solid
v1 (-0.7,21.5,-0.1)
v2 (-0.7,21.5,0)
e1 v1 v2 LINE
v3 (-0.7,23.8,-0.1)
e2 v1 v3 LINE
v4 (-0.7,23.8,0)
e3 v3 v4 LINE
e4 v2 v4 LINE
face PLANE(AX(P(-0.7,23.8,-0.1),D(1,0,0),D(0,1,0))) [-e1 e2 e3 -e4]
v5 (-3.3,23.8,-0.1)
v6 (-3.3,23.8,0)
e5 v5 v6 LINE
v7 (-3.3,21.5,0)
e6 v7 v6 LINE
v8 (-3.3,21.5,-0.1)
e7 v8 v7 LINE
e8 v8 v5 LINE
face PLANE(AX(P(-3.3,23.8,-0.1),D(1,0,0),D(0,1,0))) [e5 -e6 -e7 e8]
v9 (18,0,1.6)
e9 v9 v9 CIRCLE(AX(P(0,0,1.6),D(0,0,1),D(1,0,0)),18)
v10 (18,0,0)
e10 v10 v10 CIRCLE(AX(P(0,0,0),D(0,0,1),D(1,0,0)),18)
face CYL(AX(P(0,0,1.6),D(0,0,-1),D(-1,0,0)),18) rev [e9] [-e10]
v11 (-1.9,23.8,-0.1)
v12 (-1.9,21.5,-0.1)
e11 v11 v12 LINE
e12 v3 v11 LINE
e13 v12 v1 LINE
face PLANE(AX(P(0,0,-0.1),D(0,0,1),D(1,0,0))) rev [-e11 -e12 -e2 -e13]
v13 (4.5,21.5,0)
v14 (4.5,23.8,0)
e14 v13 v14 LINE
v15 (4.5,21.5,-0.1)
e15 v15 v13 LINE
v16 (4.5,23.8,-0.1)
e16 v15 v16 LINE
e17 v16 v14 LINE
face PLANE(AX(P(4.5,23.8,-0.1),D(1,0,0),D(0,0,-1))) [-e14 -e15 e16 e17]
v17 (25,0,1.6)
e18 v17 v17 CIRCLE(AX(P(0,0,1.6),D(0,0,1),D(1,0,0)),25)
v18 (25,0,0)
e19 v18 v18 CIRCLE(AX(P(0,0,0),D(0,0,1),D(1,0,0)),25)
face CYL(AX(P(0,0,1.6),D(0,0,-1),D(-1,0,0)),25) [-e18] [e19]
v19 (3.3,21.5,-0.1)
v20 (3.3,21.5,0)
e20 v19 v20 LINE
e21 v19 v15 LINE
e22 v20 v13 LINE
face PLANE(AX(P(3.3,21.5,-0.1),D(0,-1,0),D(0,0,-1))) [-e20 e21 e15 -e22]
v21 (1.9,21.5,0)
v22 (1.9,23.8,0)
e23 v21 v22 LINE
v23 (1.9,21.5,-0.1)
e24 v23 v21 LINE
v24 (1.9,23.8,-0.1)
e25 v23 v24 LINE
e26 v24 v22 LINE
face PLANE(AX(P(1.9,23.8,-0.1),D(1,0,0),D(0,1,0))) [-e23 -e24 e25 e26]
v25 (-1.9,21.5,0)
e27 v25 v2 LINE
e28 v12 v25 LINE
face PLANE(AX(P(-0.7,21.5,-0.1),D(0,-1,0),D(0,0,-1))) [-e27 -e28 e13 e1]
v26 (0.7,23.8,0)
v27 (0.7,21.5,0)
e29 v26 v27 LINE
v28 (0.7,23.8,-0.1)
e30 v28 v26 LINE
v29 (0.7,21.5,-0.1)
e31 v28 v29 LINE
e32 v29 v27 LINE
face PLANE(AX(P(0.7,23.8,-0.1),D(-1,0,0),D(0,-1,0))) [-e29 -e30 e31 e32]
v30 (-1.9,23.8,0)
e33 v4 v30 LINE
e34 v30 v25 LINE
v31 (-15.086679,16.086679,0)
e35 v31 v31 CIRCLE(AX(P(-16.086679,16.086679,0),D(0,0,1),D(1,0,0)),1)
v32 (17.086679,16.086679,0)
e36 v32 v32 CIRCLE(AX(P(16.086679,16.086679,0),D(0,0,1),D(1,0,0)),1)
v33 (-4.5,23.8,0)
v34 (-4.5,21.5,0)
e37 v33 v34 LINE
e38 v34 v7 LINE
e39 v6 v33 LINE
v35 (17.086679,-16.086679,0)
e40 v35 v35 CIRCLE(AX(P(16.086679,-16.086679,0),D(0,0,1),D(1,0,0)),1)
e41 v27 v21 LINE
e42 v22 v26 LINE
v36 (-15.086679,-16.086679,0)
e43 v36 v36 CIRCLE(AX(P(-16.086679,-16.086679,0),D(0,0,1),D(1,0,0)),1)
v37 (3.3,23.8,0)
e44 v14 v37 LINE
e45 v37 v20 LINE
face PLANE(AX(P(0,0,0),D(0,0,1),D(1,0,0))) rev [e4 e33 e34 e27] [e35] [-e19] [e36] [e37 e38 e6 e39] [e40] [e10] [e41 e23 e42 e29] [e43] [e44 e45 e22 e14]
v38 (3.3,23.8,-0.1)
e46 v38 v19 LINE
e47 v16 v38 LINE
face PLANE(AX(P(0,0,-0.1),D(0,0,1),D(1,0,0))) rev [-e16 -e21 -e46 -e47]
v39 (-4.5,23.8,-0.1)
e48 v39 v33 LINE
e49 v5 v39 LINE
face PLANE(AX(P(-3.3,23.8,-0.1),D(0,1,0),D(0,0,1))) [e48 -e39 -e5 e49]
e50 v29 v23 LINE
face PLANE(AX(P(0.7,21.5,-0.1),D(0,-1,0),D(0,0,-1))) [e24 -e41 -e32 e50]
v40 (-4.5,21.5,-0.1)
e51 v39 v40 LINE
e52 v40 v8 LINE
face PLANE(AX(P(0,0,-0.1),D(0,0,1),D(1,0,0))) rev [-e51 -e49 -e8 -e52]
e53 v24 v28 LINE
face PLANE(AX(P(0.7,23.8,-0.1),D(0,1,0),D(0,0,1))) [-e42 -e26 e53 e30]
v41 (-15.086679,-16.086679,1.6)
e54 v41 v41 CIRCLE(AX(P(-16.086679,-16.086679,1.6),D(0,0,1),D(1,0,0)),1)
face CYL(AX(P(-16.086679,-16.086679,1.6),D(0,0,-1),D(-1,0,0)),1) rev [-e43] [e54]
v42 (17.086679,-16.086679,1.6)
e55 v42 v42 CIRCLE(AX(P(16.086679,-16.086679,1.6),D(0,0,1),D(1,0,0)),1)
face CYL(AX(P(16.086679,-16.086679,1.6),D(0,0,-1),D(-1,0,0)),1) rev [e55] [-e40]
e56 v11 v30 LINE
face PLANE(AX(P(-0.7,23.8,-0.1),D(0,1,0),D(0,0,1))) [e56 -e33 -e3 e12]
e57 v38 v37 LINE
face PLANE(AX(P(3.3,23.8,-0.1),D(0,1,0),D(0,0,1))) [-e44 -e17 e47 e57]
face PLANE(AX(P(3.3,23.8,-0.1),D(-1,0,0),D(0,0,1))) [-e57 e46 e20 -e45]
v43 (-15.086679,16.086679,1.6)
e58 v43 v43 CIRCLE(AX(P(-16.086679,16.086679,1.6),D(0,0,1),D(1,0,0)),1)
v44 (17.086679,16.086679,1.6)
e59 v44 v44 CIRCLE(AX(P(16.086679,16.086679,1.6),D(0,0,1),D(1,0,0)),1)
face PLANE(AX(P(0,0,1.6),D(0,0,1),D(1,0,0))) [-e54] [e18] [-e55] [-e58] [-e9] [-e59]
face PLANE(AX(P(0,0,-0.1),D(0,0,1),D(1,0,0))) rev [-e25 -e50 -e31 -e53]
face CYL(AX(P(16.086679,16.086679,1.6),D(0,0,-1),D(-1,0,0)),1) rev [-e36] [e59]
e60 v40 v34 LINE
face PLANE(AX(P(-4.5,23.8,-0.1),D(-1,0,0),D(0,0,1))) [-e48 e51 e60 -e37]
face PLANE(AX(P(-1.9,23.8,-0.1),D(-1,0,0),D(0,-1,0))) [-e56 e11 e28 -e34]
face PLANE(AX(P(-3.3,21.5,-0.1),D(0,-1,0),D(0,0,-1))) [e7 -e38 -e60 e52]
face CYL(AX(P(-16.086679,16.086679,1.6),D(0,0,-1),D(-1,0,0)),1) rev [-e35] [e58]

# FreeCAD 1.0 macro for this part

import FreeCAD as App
import Part
import Sketcher
from FreeCAD import Vector

doc = App.newDocument("Part")
body = doc.addObject("PartDesign::Body", "Body")

# Sketch on XY plane
sketch1 = body.newObject("Sketcher::SketchObject", "Sketch")
sketch1.AttachmentSupport = (doc.getObject("XY_Plane"), [""])
sketch1.MapMode = "FlatFace"
sketch1.addGeometry(Part.Circle(Vector(0, 0, 0), Vector(0, 0, 1), 25), False)
sketch1.addGeometry(Part.Circle(Vector(-16.1, -16.1, 0), Vector(0, 0, 1), 1), False)
sketch1.addGeometry(Part.Circle(Vector(16.1, -16.1, 0), Vector(0, 0, 1), 1), False)
sketch1.addGeometry(Part.Circle(Vector(-16.1, 16.1, 0), Vector(0, 0, 1), 1), False)
sketch1.addGeometry(Part.Circle(Vector(0, 0, 0), Vector(0, 0, 1), 18), False)
sketch1.addGeometry(Part.Circle(Vector(16.1, 16.1, 0), Vector(0, 0, 1), 1), False)
sketch1.addConstraint(Sketcher.Constraint("Coincident", 0, 3, -1, 1))
sketch1.addConstraint(Sketcher.Constraint("Coincident", 4, 3, -1, 1))
sketch1.addConstraint(Sketcher.Constraint("Equal", 1, 2))
sketch1.addConstraint(Sketcher.Constraint("Equal", 2, 3))
sketch1.addConstraint(Sketcher.Constraint("Equal", 3, 5))
sketch1.addConstraint(Sketcher.Constraint("Symmetric", 2, 3, 3, 3, -1, 1))
sketch1.addConstraint(Sketcher.Constraint("Symmetric", 1, 3, 5, 3, -1, 1))
sketch1.addConstraint(Sketcher.Constraint("Symmetric", 1, 3, 2, 3, -2))
sketch1.addConstraint(Sketcher.Constraint("Diameter", 0, 50.0))
sketch1.addConstraint(Sketcher.Constraint("Diameter", 1, 2.0))
sketch1.addConstraint(Sketcher.Constraint("Diameter", 4, 36.0))
sketch1.addConstraint(Sketcher.Constraint("DistanceX", 1, 3, -1, 1, 16.086679))
sketch1.addConstraint(Sketcher.Constraint("DistanceY", 1, 3, -1, 1, 16.086679))
pad1 = body.newObject("PartDesign::Pad", "Pad")
pad1.Profile = sketch1
pad1.Length = 1.6

# Sketch on XY plane
sketch2 = body.newObject("Sketcher::SketchObject", "Sketch001")
sketch2.AttachmentSupport = (doc.getObject("XY_Plane"), [""])
sketch2.MapMode = "FlatFace"
sketch2.addGeometry(Part.LineSegment(Vector(0.7, 23.8, 0), Vector(0.7, 21.5, 0)), False)
sketch2.addGeometry(Part.LineSegment(Vector(0.7, 21.5, 0), Vector(1.9, 21.5, 0)), False)
sketch2.addGeometry(Part.LineSegment(Vector(1.9, 21.5, 0), Vector(1.9, 23.8, 0)), False)
sketch2.addGeometry(Part.LineSegment(Vector(1.9, 23.8, 0), Vector(0.7, 23.8, 0)), False)
sketch2.addGeometry(Part.LineSegment(Vector(3.3, 23.8, 0), Vector(3.3, 21.5, 0)), False)
sketch2.addGeometry(Part.LineSegment(Vector(3.3, 21.5, 0), Vector(4.5, 21.5, 0)), False)
sketch2.addGeometry(Part.LineSegment(Vector(4.5, 21.5, 0), Vector(4.5, 23.8, 0)), False)
sketch2.addGeometry(Part.LineSegment(Vector(4.5, 23.8, 0), Vector(3.3, 23.8, 0)), False)
sketch2.addGeometry(Part.LineSegment(Vector(-4.5, 23.8, 0), Vector(-4.5, 21.5, 0)), False)
sketch2.addGeometry(Part.LineSegment(Vector(-4.5, 21.5, 0), Vector(-3.3, 21.5, 0)), False)
sketch2.addGeometry(Part.LineSegment(Vector(-3.3, 21.5, 0), Vector(-3.3, 23.8, 0)), False)
sketch2.addGeometry(Part.LineSegment(Vector(-3.3, 23.8, 0), Vector(-4.5, 23.8, 0)), False)
sketch2.addGeometry(Part.LineSegment(Vector(-1.9, 23.8, 0), Vector(-1.9, 21.5, 0)), False)
sketch2.addGeometry(Part.LineSegment(Vector(-1.9, 21.5, 0), Vector(-0.7, 21.5, 0)), False)
sketch2.addGeometry(Part.LineSegment(Vector(-0.7, 21.5, 0), Vector(-0.7, 23.8, 0)), False)
sketch2.addGeometry(Part.LineSegment(Vector(-0.7, 23.8, 0), Vector(-1.9, 23.8, 0)), False)
sketch2.addConstraint(Sketcher.Constraint("Coincident", 0, 2, 1, 1))
sketch2.addConstraint(Sketcher.Constraint("Coincident", 1, 2, 2, 1))
sketch2.addConstraint(Sketcher.Constraint("Coincident", 2, 2, 3, 1))
sketch2.addConstraint(Sketcher.Constraint("Coincident", 3, 2, 0, 1))
sketch2.addConstraint(Sketcher.Constraint("Coincident", 4, 2, 5, 1))
sketch2.addConstraint(Sketcher.Constraint("Coincident", 5, 2, 6, 1))
sketch2.addConstraint(Sketcher.Constraint("Coincident", 6, 2, 7, 1))
sketch2.addConstraint(Sketcher.Constraint("Coincident", 7, 2, 4, 1))
sketch2.addConstraint(Sketcher.Constraint("Coincident", 8, 2, 9, 1))
sketch2.addConstraint(Sketcher.Constraint("Coincident", 9, 2, 10, 1))
sketch2.addConstraint(Sketcher.Constraint("Coincident", 10, 2, 11, 1))
sketch2.addConstraint(Sketcher.Constraint("Coincident", 11, 2, 8, 1))
sketch2.addConstraint(Sketcher.Constraint("Coincident", 12, 2, 13, 1))
sketch2.addConstraint(Sketcher.Constraint("Coincident", 13, 2, 14, 1))
sketch2.addConstraint(Sketcher.Constraint("Coincident", 14, 2, 15, 1))
sketch2.addConstraint(Sketcher.Constraint("Coincident", 15, 2, 12, 1))
sketch2.addConstraint(Sketcher.Constraint("Vertical", 0))
sketch2.addConstraint(Sketcher.Constraint("Horizontal", 1))
sketch2.addConstraint(Sketcher.Constraint("Vertical", 2))
sketch2.addConstraint(Sketcher.Constraint("Horizontal", 3))
sketch2.addConstraint(Sketcher.Constraint("Vertical", 4))
sketch2.addConstraint(Sketcher.Constraint("Horizontal", 5))
sketch2.addConstraint(Sketcher.Constraint("Vertical", 6))
sketch2.addConstraint(Sketcher.Constraint("Horizontal", 7))
sketch2.addConstraint(Sketcher.Constraint("Vertical", 8))
sketch2.addConstraint(Sketcher.Constraint("Horizontal", 9))
sketch2.addConstraint(Sketcher.Constraint("Vertical", 10))
sketch2.addConstraint(Sketcher.Constraint("Horizontal", 11))
sketch2.addConstraint(Sketcher.Constraint("Vertical", 12))
sketch2.addConstraint(Sketcher.Constraint("Horizontal", 13))
sketch2.addConstraint(Sketcher.Constraint("Vertical", 14))
sketch2.addConstraint(Sketcher.Constraint("Horizontal", 15))
sketch2.addConstraint(Sketcher.Constraint("Symmetric", 5, 2, 8, 2, -2))
sketch2.addConstraint(Sketcher.Constraint("Symmetric", 7, 2, 10, 2, -2))
sketch2.addConstraint(Sketcher.Constraint("Symmetric", 1, 2, 12, 2, -2))
sketch2.addConstraint(Sketcher.Constraint("Symmetric", 3, 2, 14, 2, -2))
sketch2.addConstraint(Sketcher.Constraint("Horizontal", 1, 2, 4, 2))
sketch2.addConstraint(Sketcher.Constraint("Horizontal", 3, 2, 6, 2))
sketch2.addConstraint(Sketcher.Constraint("Equal", 3, 5))
sketch2.addConstraint(Sketcher.Constraint("DistanceX", 1, 1, 1, 2, 1.2))
sketch2.addConstraint(Sketcher.Constraint("DistanceY", 0, 2, 0, 1, 2.3))
sketch2.addConstraint(Sketcher.Constraint("DistanceX", 9, 2, 0, 2, 4.0))
sketch2.addConstraint(Sketcher.Constraint("DistanceX", -1, 1, 0, 2, 0.7))
sketch2.addConstraint(Sketcher.Constraint("DistanceY", -1, 1, 0, 2, 21.5))
pad2 = body.newObject("PartDesign::Pad", "Pad001")
pad2.Profile = sketch2
pad2.Length = 0.1
pad2.Reversed = True

doc.recompute()
